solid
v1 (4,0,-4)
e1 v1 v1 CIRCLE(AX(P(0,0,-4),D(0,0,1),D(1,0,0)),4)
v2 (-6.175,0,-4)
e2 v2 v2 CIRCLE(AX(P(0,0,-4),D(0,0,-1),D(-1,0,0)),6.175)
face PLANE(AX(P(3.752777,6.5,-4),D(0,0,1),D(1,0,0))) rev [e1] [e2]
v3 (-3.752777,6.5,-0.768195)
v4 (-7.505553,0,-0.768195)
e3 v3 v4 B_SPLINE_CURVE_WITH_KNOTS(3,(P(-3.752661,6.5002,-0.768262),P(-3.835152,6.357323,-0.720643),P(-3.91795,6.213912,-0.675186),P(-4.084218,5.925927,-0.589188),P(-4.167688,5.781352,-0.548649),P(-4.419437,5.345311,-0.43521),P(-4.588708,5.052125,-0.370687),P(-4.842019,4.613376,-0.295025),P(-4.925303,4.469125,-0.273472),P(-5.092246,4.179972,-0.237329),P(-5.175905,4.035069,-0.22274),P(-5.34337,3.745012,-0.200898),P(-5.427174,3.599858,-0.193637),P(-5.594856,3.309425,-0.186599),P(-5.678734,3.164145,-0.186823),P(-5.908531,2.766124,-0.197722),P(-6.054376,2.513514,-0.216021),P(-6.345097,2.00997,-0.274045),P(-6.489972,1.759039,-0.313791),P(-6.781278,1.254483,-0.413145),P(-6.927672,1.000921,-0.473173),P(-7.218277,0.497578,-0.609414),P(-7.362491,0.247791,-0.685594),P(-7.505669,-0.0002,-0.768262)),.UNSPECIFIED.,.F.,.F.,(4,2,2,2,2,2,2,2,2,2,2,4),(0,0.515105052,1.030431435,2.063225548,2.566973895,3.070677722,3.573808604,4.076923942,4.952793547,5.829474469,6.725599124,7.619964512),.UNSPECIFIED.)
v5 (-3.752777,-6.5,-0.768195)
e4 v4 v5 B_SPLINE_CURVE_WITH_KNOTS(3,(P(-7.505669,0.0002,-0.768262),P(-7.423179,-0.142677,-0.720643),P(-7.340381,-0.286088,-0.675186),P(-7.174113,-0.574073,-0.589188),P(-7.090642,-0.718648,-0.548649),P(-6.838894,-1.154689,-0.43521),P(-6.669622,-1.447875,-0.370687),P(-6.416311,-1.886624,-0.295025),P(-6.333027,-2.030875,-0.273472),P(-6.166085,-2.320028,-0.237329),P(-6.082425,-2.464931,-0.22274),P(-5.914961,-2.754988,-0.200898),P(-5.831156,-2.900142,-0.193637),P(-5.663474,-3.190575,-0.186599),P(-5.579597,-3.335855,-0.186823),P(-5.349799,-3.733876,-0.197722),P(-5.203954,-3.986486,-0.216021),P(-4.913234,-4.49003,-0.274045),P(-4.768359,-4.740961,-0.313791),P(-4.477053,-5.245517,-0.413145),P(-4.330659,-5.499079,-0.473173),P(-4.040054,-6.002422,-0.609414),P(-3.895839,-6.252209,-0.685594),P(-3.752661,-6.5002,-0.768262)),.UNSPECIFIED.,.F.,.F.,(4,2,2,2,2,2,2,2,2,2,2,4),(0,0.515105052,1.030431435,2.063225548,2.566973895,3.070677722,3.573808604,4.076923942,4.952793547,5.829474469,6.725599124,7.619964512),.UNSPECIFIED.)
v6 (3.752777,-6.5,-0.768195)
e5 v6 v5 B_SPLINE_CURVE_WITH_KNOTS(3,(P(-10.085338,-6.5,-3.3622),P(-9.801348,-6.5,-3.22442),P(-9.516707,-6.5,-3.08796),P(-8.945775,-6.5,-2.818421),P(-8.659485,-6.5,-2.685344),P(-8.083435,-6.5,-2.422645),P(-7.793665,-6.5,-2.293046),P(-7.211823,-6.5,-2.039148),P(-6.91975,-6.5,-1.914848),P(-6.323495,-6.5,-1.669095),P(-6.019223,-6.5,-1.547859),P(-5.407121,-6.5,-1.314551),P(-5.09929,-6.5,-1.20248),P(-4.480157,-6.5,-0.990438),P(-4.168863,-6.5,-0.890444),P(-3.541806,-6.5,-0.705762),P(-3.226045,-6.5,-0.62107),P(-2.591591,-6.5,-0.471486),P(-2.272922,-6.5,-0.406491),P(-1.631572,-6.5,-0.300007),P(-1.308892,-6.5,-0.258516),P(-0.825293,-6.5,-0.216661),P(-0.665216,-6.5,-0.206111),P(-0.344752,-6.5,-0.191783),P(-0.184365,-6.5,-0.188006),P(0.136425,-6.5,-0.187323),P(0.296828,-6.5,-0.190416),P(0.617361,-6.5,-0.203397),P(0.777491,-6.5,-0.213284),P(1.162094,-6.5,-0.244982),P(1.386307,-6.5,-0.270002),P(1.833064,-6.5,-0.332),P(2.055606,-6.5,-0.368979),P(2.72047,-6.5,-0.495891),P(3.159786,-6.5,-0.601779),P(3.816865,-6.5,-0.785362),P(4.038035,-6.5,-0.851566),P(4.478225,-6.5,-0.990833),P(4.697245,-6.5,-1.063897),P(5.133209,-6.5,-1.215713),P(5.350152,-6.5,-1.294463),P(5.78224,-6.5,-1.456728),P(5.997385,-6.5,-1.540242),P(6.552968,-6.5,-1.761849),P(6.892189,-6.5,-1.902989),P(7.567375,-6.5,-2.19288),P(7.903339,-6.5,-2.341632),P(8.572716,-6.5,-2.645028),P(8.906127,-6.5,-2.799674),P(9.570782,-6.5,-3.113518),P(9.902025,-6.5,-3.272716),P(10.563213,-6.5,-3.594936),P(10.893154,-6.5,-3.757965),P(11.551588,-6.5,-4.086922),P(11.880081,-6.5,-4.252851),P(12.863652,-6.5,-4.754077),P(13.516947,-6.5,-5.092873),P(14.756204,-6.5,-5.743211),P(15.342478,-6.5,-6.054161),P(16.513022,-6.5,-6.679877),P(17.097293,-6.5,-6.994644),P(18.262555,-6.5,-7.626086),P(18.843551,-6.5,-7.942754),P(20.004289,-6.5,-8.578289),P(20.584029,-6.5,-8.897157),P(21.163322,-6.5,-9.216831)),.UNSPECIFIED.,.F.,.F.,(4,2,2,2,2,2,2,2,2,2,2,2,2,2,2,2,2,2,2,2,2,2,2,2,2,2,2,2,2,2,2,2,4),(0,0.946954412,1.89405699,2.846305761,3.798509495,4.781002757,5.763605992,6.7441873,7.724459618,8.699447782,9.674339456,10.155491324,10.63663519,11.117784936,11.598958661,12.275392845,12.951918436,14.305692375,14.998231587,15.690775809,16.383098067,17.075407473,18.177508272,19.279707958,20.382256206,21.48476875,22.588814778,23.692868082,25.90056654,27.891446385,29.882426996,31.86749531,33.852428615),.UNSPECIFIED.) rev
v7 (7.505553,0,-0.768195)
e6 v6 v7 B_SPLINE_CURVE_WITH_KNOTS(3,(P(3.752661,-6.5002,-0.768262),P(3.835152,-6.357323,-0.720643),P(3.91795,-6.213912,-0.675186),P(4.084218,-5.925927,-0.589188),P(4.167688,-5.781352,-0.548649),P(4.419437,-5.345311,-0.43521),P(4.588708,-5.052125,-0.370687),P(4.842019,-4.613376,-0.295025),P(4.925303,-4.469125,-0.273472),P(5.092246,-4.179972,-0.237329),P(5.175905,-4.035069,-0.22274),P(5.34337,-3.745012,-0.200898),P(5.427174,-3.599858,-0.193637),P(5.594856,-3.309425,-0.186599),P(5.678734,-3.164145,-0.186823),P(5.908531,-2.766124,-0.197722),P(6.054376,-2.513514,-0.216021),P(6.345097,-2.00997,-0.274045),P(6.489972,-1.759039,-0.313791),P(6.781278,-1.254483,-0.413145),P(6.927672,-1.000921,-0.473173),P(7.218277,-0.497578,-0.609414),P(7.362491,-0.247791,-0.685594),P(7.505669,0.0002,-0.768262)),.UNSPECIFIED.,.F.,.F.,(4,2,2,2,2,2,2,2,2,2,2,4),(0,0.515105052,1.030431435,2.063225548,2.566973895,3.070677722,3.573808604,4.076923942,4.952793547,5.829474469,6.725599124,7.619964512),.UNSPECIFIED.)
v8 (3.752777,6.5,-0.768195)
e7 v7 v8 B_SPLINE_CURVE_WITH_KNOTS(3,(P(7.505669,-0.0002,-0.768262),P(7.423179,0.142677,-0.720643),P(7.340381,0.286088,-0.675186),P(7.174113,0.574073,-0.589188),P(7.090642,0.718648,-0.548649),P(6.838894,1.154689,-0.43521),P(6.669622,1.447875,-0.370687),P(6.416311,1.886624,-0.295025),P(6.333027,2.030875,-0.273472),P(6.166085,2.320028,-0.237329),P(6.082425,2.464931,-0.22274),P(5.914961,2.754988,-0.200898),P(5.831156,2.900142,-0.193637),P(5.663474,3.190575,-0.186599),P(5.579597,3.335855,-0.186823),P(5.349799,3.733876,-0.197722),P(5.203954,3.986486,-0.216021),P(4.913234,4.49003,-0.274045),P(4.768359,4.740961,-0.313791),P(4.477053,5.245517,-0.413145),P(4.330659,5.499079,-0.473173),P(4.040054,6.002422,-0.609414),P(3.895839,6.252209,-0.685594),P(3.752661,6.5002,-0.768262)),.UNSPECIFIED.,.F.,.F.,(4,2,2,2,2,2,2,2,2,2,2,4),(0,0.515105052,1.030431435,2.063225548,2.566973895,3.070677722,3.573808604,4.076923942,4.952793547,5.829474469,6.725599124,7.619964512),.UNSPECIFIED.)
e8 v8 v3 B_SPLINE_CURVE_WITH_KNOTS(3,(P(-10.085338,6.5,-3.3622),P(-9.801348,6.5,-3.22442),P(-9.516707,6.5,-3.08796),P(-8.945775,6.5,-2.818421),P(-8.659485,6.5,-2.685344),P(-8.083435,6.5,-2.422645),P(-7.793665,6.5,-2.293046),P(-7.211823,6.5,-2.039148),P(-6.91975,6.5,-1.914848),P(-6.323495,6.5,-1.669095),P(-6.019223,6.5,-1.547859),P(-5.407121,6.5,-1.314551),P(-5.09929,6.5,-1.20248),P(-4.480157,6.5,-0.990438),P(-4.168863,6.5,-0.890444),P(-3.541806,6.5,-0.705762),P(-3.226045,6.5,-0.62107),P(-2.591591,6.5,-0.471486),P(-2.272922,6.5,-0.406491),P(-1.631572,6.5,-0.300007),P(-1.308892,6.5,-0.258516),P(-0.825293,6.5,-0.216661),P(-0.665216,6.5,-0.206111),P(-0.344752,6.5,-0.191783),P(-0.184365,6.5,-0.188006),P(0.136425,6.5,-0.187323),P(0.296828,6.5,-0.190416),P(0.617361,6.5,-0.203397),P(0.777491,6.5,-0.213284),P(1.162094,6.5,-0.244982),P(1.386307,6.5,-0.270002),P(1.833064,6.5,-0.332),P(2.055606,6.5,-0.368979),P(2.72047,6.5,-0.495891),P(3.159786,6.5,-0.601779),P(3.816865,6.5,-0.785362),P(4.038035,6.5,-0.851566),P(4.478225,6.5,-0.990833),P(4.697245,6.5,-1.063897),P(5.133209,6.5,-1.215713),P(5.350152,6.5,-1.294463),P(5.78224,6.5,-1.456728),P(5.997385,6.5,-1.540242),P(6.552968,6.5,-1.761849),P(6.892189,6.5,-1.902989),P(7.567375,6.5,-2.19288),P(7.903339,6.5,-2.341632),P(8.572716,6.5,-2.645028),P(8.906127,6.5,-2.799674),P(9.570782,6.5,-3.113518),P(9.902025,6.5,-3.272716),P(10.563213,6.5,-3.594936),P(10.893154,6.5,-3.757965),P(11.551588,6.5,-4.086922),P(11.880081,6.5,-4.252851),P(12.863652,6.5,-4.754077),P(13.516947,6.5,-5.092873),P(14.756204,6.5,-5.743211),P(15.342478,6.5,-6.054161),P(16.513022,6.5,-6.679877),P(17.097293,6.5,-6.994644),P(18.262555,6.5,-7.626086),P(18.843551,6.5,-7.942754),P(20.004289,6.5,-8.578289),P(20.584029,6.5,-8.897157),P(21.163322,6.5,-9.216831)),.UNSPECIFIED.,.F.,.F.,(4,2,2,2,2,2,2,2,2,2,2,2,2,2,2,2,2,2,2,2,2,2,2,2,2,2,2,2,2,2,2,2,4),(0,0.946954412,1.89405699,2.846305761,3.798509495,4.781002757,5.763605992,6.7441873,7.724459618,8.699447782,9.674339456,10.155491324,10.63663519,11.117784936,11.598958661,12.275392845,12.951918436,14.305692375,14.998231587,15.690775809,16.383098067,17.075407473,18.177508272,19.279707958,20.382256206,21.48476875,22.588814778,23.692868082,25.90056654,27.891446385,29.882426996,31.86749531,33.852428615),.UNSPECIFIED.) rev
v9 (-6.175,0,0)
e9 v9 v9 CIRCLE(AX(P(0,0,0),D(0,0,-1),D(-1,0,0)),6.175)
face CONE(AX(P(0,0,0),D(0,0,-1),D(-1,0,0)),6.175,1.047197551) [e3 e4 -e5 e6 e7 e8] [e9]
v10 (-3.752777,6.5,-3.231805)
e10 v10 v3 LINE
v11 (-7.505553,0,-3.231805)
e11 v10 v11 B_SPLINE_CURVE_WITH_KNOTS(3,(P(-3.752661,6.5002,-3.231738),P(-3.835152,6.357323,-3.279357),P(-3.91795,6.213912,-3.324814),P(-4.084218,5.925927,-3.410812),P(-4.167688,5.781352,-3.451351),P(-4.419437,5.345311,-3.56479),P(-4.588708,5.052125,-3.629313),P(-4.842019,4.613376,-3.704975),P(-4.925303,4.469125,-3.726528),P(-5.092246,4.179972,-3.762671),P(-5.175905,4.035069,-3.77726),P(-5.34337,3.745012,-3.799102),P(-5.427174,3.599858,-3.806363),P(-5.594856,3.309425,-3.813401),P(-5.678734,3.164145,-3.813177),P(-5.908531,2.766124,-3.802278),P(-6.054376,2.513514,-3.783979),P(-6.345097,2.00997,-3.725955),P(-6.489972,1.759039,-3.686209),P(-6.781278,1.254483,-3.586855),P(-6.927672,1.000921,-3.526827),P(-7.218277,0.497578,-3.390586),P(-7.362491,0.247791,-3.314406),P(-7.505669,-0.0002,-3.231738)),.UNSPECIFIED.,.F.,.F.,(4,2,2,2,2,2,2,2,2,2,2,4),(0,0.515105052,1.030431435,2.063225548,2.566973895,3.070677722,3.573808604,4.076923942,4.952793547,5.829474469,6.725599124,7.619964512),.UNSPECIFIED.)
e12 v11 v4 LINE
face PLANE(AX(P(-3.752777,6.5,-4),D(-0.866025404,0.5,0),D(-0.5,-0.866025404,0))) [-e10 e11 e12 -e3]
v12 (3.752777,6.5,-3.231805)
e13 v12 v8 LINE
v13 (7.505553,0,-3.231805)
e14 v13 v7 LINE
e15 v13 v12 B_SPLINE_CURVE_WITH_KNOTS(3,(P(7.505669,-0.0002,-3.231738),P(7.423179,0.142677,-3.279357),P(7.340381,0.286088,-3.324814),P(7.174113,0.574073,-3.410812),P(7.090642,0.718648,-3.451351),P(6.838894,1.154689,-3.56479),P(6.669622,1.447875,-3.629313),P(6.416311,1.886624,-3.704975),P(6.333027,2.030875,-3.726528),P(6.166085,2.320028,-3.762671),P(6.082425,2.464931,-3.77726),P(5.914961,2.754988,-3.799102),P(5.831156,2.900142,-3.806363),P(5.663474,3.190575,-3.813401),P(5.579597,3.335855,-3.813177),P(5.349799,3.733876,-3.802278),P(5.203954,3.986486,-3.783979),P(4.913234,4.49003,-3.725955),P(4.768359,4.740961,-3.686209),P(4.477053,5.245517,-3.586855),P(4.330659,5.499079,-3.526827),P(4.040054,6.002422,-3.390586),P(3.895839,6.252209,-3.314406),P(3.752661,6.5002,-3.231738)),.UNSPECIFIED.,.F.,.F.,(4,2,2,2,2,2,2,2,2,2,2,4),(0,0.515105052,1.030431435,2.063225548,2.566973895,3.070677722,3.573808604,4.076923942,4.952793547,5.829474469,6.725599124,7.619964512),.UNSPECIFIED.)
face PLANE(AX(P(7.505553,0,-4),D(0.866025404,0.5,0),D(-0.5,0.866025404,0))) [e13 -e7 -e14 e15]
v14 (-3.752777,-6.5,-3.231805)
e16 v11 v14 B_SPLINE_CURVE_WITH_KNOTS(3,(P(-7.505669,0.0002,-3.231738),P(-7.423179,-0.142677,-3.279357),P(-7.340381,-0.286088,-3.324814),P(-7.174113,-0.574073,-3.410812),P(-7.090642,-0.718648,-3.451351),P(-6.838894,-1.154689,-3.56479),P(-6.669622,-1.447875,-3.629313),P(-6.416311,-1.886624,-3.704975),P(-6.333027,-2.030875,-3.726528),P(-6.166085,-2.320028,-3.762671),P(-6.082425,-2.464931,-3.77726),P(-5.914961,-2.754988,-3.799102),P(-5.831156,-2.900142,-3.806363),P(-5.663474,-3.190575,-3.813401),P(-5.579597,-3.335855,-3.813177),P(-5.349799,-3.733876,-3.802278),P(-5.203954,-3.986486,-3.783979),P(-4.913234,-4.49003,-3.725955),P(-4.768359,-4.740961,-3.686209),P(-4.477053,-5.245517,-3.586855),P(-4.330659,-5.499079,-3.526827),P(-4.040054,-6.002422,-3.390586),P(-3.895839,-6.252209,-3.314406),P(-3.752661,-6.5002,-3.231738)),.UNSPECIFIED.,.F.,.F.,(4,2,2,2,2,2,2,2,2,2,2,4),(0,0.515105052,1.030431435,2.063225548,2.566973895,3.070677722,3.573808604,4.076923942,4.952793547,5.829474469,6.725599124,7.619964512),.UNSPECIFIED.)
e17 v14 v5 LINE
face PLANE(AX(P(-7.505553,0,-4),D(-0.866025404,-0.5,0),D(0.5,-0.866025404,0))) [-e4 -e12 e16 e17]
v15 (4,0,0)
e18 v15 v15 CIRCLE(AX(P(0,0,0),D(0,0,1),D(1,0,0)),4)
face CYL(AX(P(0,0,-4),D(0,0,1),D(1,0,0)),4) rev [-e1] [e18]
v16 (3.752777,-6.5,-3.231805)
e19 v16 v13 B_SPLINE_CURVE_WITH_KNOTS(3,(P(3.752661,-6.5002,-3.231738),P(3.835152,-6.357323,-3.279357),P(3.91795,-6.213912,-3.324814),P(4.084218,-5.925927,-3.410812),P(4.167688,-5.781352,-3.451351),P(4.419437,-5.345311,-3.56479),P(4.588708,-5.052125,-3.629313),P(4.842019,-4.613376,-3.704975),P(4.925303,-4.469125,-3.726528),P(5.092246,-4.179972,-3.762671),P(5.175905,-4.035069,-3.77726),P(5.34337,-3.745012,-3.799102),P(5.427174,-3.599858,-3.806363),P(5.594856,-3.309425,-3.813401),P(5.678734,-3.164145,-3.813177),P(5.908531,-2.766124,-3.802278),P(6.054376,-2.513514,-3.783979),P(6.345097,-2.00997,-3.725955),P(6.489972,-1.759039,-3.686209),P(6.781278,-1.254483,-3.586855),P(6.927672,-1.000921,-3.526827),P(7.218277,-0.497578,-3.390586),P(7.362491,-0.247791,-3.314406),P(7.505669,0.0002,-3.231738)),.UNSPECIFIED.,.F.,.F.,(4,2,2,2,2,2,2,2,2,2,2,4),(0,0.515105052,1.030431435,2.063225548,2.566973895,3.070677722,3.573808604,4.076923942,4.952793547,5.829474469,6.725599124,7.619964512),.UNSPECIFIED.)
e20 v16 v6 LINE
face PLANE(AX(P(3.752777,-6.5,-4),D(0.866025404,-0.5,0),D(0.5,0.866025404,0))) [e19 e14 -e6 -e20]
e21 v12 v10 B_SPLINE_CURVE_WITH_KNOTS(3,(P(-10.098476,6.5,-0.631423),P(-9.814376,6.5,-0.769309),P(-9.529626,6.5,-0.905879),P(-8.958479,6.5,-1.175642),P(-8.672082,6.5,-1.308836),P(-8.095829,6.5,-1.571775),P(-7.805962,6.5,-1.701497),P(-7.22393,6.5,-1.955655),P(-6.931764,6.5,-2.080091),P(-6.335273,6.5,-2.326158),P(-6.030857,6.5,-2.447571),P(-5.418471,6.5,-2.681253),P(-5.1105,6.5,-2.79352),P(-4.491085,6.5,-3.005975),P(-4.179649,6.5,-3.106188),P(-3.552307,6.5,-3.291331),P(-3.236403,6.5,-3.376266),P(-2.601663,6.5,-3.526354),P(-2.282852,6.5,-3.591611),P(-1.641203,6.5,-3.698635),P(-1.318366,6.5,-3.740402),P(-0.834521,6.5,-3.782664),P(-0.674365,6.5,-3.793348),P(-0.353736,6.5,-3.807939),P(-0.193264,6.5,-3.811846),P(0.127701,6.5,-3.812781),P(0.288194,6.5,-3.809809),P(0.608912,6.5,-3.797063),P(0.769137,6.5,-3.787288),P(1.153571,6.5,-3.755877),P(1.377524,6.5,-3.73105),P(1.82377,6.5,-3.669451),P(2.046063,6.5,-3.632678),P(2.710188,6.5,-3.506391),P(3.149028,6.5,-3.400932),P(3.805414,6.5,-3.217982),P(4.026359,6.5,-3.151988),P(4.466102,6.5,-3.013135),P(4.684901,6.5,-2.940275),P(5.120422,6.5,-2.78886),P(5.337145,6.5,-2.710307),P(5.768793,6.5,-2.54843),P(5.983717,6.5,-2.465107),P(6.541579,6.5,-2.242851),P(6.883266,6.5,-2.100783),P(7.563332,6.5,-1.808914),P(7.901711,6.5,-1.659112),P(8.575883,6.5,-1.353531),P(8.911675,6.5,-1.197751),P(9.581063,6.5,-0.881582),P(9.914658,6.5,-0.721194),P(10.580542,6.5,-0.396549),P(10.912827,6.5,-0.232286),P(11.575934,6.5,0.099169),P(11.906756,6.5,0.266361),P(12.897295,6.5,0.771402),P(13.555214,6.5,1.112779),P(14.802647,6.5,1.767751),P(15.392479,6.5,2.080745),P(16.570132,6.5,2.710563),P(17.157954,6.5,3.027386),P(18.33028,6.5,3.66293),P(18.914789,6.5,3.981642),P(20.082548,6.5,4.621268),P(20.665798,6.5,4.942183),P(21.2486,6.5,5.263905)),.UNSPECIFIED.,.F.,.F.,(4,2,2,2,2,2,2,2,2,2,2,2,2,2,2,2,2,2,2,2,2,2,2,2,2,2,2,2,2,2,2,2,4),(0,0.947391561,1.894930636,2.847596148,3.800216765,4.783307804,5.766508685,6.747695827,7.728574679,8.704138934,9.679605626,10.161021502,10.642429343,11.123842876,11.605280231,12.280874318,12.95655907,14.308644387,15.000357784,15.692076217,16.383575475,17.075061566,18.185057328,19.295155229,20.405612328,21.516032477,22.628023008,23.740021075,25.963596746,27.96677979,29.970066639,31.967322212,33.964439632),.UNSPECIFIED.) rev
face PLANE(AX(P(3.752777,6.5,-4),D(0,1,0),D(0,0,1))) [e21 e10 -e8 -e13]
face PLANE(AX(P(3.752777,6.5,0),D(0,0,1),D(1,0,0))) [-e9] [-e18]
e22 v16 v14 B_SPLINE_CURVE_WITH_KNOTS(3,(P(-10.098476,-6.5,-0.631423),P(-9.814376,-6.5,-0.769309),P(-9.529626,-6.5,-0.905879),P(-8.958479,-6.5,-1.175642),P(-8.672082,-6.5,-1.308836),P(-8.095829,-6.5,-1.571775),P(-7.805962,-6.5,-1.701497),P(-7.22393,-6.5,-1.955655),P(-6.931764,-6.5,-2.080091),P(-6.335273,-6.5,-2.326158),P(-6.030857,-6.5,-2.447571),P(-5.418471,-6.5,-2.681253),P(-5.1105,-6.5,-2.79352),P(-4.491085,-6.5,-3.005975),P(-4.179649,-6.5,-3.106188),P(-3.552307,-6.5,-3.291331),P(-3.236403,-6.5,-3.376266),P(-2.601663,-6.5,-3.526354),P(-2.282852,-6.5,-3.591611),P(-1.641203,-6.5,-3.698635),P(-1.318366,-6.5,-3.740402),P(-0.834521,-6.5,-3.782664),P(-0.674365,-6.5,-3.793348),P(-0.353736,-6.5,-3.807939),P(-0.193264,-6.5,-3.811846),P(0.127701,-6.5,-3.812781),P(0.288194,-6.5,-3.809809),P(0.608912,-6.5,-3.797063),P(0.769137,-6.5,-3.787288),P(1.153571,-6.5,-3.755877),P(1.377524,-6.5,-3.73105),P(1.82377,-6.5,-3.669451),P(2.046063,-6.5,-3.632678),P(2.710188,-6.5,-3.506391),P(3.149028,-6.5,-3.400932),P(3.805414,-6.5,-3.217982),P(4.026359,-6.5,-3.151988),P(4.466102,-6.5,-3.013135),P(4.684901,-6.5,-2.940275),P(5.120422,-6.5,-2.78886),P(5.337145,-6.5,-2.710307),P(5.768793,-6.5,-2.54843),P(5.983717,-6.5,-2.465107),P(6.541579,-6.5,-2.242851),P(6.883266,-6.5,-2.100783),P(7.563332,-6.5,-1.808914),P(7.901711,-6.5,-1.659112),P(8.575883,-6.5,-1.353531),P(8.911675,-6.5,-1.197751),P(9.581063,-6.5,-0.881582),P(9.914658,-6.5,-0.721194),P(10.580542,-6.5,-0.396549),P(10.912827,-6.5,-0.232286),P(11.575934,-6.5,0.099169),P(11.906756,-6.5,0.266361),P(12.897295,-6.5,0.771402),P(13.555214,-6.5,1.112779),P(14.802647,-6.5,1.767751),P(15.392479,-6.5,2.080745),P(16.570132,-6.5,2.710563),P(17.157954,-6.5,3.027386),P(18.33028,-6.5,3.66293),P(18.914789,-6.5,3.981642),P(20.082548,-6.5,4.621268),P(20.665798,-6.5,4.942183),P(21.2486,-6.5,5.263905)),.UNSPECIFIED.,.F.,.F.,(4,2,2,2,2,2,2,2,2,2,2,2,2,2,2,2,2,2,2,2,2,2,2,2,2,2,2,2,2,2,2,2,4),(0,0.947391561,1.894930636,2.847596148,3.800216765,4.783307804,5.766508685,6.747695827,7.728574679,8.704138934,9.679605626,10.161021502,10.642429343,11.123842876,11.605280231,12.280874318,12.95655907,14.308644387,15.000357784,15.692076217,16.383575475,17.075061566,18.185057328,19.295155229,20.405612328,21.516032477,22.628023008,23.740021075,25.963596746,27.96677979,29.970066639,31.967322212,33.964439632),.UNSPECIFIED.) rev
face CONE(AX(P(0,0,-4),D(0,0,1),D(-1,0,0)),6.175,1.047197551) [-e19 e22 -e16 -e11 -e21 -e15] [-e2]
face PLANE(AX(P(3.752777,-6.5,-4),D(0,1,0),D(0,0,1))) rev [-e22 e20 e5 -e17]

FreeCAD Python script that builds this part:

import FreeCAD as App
import Part
import Sketcher
Q = App.Units.Quantity


def add_polygon(sketch, points):
    """Adds a closed chain of lines whose ends are joined by coincident constraints."""
    first, n = sketch.GeometryCount, len(points)
    for a, b in zip(points, points[1:] + points[:1]):
        sketch.addGeometry(Part.LineSegment(App.Vector(*a, 0), App.Vector(*b, 0)), False)
    for i in range(n):
        sketch.addConstraint(Sketcher.Constraint("Coincident", first + i, 2, first + (i + 1) % n, 1))

doc = App.newDocument("Part")
params = doc.addObject("Spreadsheet::Sheet", "Params")
for row, (alias, value) in enumerate([
    ("sketch1_diameter", "8 mm"),
    ("pad1_length", "4 mm"),
    ("sketch2_diameter", "12.35 mm"),
    ("pocket1_length", "5 mm"),
    ("pocket1_taper", "60 deg"),
], start=1):
    params.set(f"A{row}", alias)
    params.set(f"B{row}", "=" + value)
    params.setAlias(f"B{row}", alias)

body = doc.addObject("PartDesign::Body", "Body")

# Sketch on XY plane
sketch1 = doc.addObject("Sketcher::SketchObject", "Sketch")
body.addObject(sketch1)
sketch1.AttachmentSupport = (doc.XY_Plane, [""])
sketch1.MapMode = "FlatFace"
add_polygon(sketch1, [(-3.8, -6.5), (3.8, -6.5), (7.5, 0), (3.8, 6.5), (-3.8, 6.5), (-7.5, 0)])  # lines 0-5
sketch1.addGeometry(Part.Circle(App.Vector(0, 0, 0), App.Vector(0, 0, 1), 4), False)  # 6
sketch1.addConstraint([
    Sketcher.Constraint("Horizontal", 0),
    Sketcher.Constraint("Horizontal", 3),
    Sketcher.Constraint("Coincident", 6, 3, -1, 1),
    Sketcher.Constraint("Symmetric", 0, 2, 3, 2, -1, 1),
    Sketcher.Constraint("Symmetric", 1, 2, 4, 2, -1, 1),
    Sketcher.Constraint("PointOnObject", 1, 2, -1),
    Sketcher.Constraint("Parallel", 2, 5),
    Sketcher.Constraint("Vertical", 0, 2, 2, 2),
    Sketcher.Constraint("Diameter", 6, 8.0),
    Sketcher.Constraint("Angle", 1, Q("60 deg")),
    Sketcher.Constraint("DistanceY", 0, 2, 2, 2, 13.0),
    Sketcher.Constraint("DistanceX", 0, 1, 0, 2, 7.505554),
])
sketch1.setExpression("Constraints[14]", "Params.sketch1_diameter")
pad1 = doc.addObject("PartDesign::Pad", "Pad")
body.addObject(pad1)
pad1.Profile = sketch1
pad1.setExpression("Length", "Params.pad1_length")
pad1.Reversed = True

# Sketch on XY plane
sketch2 = doc.addObject("Sketcher::SketchObject", "Sketch001")
body.addObject(sketch2)
sketch2.AttachmentSupport = (doc.XY_Plane, [""])
sketch2.MapMode = "FlatFace"
sketch2.AttachmentOffset = App.Placement(App.Vector(0, 0, -4), App.Rotation())
add_polygon(sketch2, [(19, 18), (19, -18), (-19, -18), (-19, 18)])  # lines 0-3
sketch2.addGeometry(Part.Circle(App.Vector(0, 0, 0), App.Vector(0, 0, 1), 6), False)  # 4
sketch2.addConstraint([
    Sketcher.Constraint("Vertical", 0),
    Sketcher.Constraint("Horizontal", 1),
    Sketcher.Constraint("Vertical", 2),
    Sketcher.Constraint("Horizontal", 3),
    Sketcher.Constraint("Coincident", 4, 3, -1, 1),
    Sketcher.Constraint("Symmetric", 0, 2, 2, 2, -1, 1),
    Sketcher.Constraint("Diameter", 4, 12.35),
    Sketcher.Constraint("DistanceX", 1, 2, 1, 1, 38.384),
    Sketcher.Constraint("DistanceY", 0, 2, 0, 1, 36.372),
])
sketch2.setExpression("Constraints[10]", "Params.sketch2_diameter")
pocket1 = doc.addObject("PartDesign::Pocket", "Pocket")
body.addObject(pocket1)
pocket1.Profile = sketch2
pocket1.setExpression("Length", "Params.pocket1_length")
pocket1.Reversed = True
pocket1.setExpression("TaperAngle", "Params.pocket1_taper")
doc.recompute()

datumplane = doc.addObject("PartDesign::Plane", "DatumPlane")
body.addObject(datumplane)
datumplane.AttachmentSupport = (doc.XY_Plane, [""])
datumplane.MapMode = "FlatFace"
datumplane.AttachmentOffset = App.Placement(App.Vector(0, 0, -2), App.Rotation())
mirrored = doc.addObject("PartDesign::Mirrored", "Mirrored")
body.addObject(mirrored)
mirrored.Originals = [pocket1]
mirrored.MirrorPlane = (datumplane, [""])
body.Tip = mirrored

doc.recompute()
